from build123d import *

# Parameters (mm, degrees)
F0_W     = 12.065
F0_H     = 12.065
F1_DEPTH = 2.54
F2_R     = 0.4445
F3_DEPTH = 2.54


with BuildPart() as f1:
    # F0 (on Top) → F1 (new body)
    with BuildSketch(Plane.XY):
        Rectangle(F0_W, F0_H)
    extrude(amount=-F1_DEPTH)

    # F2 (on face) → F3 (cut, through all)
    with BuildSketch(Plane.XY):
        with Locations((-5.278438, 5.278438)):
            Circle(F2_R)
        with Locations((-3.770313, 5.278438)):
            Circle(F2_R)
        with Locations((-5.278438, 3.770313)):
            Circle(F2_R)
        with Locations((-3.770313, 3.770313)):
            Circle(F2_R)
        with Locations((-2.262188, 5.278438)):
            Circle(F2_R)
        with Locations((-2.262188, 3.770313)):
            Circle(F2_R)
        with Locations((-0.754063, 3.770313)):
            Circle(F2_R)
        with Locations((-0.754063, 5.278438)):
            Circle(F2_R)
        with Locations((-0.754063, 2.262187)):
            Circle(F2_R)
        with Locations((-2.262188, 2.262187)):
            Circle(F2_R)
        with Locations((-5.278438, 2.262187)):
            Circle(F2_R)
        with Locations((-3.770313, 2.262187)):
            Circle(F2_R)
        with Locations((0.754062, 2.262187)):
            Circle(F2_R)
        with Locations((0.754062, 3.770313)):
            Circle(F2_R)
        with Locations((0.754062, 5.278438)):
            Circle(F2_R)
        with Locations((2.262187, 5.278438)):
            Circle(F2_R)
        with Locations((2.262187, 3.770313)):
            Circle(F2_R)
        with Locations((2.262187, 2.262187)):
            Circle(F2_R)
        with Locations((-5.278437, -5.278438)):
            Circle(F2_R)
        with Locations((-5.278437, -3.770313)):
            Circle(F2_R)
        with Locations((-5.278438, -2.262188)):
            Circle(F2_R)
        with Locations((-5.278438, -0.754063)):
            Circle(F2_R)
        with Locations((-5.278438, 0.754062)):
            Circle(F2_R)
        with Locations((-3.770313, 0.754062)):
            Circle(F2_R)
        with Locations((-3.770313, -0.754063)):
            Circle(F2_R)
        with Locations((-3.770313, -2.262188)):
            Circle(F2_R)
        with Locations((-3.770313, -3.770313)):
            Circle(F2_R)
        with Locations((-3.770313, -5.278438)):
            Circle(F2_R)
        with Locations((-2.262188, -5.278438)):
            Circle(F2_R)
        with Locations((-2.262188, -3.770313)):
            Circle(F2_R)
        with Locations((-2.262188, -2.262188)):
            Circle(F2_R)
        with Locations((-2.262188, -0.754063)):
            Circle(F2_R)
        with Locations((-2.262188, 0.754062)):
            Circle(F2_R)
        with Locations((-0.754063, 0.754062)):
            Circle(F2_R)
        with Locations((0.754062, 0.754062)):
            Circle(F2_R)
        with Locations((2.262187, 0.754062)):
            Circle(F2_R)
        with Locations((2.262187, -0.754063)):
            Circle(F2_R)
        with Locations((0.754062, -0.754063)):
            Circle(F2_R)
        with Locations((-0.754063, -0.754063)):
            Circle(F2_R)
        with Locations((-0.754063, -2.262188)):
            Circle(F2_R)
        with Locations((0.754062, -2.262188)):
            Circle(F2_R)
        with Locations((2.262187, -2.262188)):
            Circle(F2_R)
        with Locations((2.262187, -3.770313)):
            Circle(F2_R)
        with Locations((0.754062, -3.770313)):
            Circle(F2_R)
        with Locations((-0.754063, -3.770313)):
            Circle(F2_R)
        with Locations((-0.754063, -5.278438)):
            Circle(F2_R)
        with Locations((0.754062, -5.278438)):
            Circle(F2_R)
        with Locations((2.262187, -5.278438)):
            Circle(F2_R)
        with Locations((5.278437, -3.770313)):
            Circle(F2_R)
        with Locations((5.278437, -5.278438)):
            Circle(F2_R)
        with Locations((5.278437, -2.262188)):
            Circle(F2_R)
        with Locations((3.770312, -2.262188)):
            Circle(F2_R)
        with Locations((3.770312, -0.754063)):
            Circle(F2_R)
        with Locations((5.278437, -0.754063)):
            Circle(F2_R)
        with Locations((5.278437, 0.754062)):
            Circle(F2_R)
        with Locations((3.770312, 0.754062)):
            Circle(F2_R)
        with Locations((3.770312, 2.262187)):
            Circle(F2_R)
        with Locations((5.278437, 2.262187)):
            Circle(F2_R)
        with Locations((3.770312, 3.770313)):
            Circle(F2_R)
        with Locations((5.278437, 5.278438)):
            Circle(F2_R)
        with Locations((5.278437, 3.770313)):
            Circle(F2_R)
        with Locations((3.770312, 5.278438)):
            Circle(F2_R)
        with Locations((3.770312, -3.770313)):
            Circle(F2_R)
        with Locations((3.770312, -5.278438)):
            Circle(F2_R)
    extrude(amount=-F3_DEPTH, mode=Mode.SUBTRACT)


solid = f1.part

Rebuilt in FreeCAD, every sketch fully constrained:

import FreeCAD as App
import Part
import Sketcher
from FreeCAD import Vector
Q = App.Units.Quantity

doc = App.newDocument("Part")
params = doc.addObject("Spreadsheet::Sheet", "Params")
for row, (alias, value) in enumerate([
    ("sketch1_width", "0.475 in"),
    ("pad1_length", "0.1 in"),
    ("sketch2_diameter", "0.035 in"),
], start=1):
    params.set(f"A{row}", alias)
    params.set(f"B{row}", "=" + value)
    params.setAlias(f"B{row}", alias)

body = doc.addObject("PartDesign::Body", "Body")

# Sketch on XY plane
sketch1 = body.newObject("Sketcher::SketchObject", "Sketch")
sketch1.AttachmentSupport = (doc.getObject("XY_Plane"), [""])
sketch1.MapMode = "FlatFace"
sketch1.addGeometry(Part.LineSegment(Vector(-6, 6, 0), Vector(-6, -6, 0)), False)
sketch1.addGeometry(Part.LineSegment(Vector(-6, -6, 0), Vector(6, -6, 0)), False)
sketch1.addGeometry(Part.LineSegment(Vector(6, -6, 0), Vector(6, 6, 0)), False)
sketch1.addGeometry(Part.LineSegment(Vector(6, 6, 0), Vector(-6, 6, 0)), False)
sketch1.addConstraint(Sketcher.Constraint("Coincident", 0, 2, 1, 1))
sketch1.addConstraint(Sketcher.Constraint("Coincident", 1, 2, 2, 1))
sketch1.addConstraint(Sketcher.Constraint("Coincident", 2, 2, 3, 1))
sketch1.addConstraint(Sketcher.Constraint("Coincident", 3, 2, 0, 1))
sketch1.addConstraint(Sketcher.Constraint("Vertical", 0))
sketch1.addConstraint(Sketcher.Constraint("Horizontal", 1))
sketch1.addConstraint(Sketcher.Constraint("Vertical", 2))
sketch1.addConstraint(Sketcher.Constraint("Horizontal", 3))
sketch1.addConstraint(Sketcher.Constraint("Symmetric", 0, 2, 2, 2, -1, 1))
sketch1.addConstraint(Sketcher.Constraint("Equal", 3, 0))
sketch1.addConstraint(Sketcher.Constraint("DistanceX", 1, 1, 1, 2, Q("0.475 in")))
sketch1.setExpression("Constraints[10]", "Params.sketch1_width")
pad1 = body.newObject("PartDesign::Pad", "Pad")
pad1.Profile = sketch1
pad1.setExpression("Length", "Params.pad1_length")
pad1.Reversed = True

# Sketch on XY plane
sketch2 = body.newObject("Sketcher::SketchObject", "Sketch001")
sketch2.AttachmentSupport = (doc.getObject("XY_Plane"), [""])
sketch2.MapMode = "FlatFace"
sketch2.addGeometry(Part.Circle(Vector(-5.28, 5.28, 0), Vector(0, 0, 1), 0.44), False)
sketch2.addGeometry(Part.Circle(Vector(-3.77, 5.28, 0), Vector(0, 0, 1), 0.44), False)
sketch2.addGeometry(Part.Circle(Vector(-5.28, 3.77, 0), Vector(0, 0, 1), 0.44), False)
sketch2.addGeometry(Part.Circle(Vector(-3.77, 3.77, 0), Vector(0, 0, 1), 0.44), False)
sketch2.addGeometry(Part.Circle(Vector(-2.26, 5.28, 0), Vector(0, 0, 1), 0.44), False)
sketch2.addGeometry(Part.Circle(Vector(-2.26, 3.77, 0), Vector(0, 0, 1), 0.44), False)
sketch2.addGeometry(Part.Circle(Vector(-0.75, 3.77, 0), Vector(0, 0, 1), 0.44), False)
sketch2.addGeometry(Part.Circle(Vector(-0.75, 5.28, 0), Vector(0, 0, 1), 0.44), False)
sketch2.addGeometry(Part.Circle(Vector(-0.75, 2.26, 0), Vector(0, 0, 1), 0.44), False)
sketch2.addGeometry(Part.Circle(Vector(-2.26, 2.26, 0), Vector(0, 0, 1), 0.44), False)
sketch2.addGeometry(Part.Circle(Vector(-5.28, 2.26, 0), Vector(0, 0, 1), 0.44), False)
sketch2.addGeometry(Part.Circle(Vector(-3.77, 2.26, 0), Vector(0, 0, 1), 0.44), False)
sketch2.addGeometry(Part.Circle(Vector(0.75, 2.26, 0), Vector(0, 0, 1), 0.44), False)
sketch2.addGeometry(Part.Circle(Vector(0.75, 3.77, 0), Vector(0, 0, 1), 0.44), False)
sketch2.addGeometry(Part.Circle(Vector(0.75, 5.28, 0), Vector(0, 0, 1), 0.44), False)
sketch2.addGeometry(Part.Circle(Vector(2.26, 5.28, 0), Vector(0, 0, 1), 0.44), False)
sketch2.addGeometry(Part.Circle(Vector(2.26, 3.77, 0), Vector(0, 0, 1), 0.44), False)
sketch2.addGeometry(Part.Circle(Vector(2.26, 2.26, 0), Vector(0, 0, 1), 0.44), False)
sketch2.addGeometry(Part.Circle(Vector(-5.28, -5.28, 0), Vector(0, 0, 1), 0.44), False)
sketch2.addGeometry(Part.Circle(Vector(-5.28, -3.77, 0), Vector(0, 0, 1), 0.44), False)
sketch2.addGeometry(Part.Circle(Vector(-5.28, -2.26, 0), Vector(0, 0, 1), 0.44), False)
sketch2.addGeometry(Part.Circle(Vector(-5.28, -0.75, 0), Vector(0, 0, 1), 0.44), False)
sketch2.addGeometry(Part.Circle(Vector(-5.28, 0.75, 0), Vector(0, 0, 1), 0.44), False)
sketch2.addGeometry(Part.Circle(Vector(-3.77, 0.75, 0), Vector(0, 0, 1), 0.44), False)
sketch2.addGeometry(Part.Circle(Vector(-3.77, -0.75, 0), Vector(0, 0, 1), 0.44), False)
sketch2.addGeometry(Part.Circle(Vector(-3.77, -2.26, 0), Vector(0, 0, 1), 0.44), False)
sketch2.addGeometry(Part.Circle(Vector(-3.77, -3.77, 0), Vector(0, 0, 1), 0.44), False)
sketch2.addGeometry(Part.Circle(Vector(-3.77, -5.28, 0), Vector(0, 0, 1), 0.44), False)
sketch2.addGeometry(Part.Circle(Vector(-2.26, -5.28, 0), Vector(0, 0, 1), 0.44), False)
sketch2.addGeometry(Part.Circle(Vector(-2.26, -3.77, 0), Vector(0, 0, 1), 0.44), False)
sketch2.addGeometry(Part.Circle(Vector(-2.26, -2.26, 0), Vector(0, 0, 1), 0.44), False)
sketch2.addGeometry(Part.Circle(Vector(-2.26, -0.75, 0), Vector(0, 0, 1), 0.44), False)
sketch2.addGeometry(Part.Circle(Vector(-2.26, 0.75, 0), Vector(0, 0, 1), 0.44), False)
sketch2.addGeometry(Part.Circle(Vector(-0.75, 0.75, 0), Vector(0, 0, 1), 0.44), False)
sketch2.addGeometry(Part.Circle(Vector(0.75, 0.75, 0), Vector(0, 0, 1), 0.44), False)
sketch2.addGeometry(Part.Circle(Vector(2.26, 0.75, 0), Vector(0, 0, 1), 0.44), False)
sketch2.addGeometry(Part.Circle(Vector(2.26, -0.75, 0), Vector(0, 0, 1), 0.44), False)
sketch2.addGeometry(Part.Circle(Vector(0.75, -0.75, 0), Vector(0, 0, 1), 0.44), False)
sketch2.addGeometry(Part.Circle(Vector(-0.75, -0.75, 0), Vector(0, 0, 1), 0.44), False)
sketch2.addGeometry(Part.Circle(Vector(-0.75, -2.26, 0), Vector(0, 0, 1), 0.44), False)
sketch2.addGeometry(Part.Circle(Vector(0.75, -2.26, 0), Vector(0, 0, 1), 0.44), False)
sketch2.addGeometry(Part.Circle(Vector(2.26, -2.26, 0), Vector(0, 0, 1), 0.44), False)
sketch2.addGeometry(Part.Circle(Vector(2.26, -3.77, 0), Vector(0, 0, 1), 0.44), False)
sketch2.addGeometry(Part.Circle(Vector(0.75, -3.77, 0), Vector(0, 0, 1), 0.44), False)
sketch2.addGeometry(Part.Circle(Vector(-0.75, -3.77, 0), Vector(0, 0, 1), 0.44), False)
sketch2.addGeometry(Part.Circle(Vector(-0.75, -5.28, 0), Vector(0, 0, 1), 0.44), False)
sketch2.addGeometry(Part.Circle(Vector(0.75, -5.28, 0), Vector(0, 0, 1), 0.44), False)
sketch2.addGeometry(Part.Circle(Vector(2.26, -5.28, 0), Vector(0, 0, 1), 0.44), False)
sketch2.addGeometry(Part.Circle(Vector(5.28, -3.77, 0), Vector(0, 0, 1), 0.44), False)
sketch2.addGeometry(Part.Circle(Vector(5.28, -5.28, 0), Vector(0, 0, 1), 0.44), False)
sketch2.addGeometry(Part.Circle(Vector(5.28, -2.26, 0), Vector(0, 0, 1), 0.44), False)
sketch2.addGeometry(Part.Circle(Vector(3.77, -2.26, 0), Vector(0, 0, 1), 0.44), False)
sketch2.addGeometry(Part.Circle(Vector(3.77, -0.75, 0), Vector(0, 0, 1), 0.44), False)
sketch2.addGeometry(Part.Circle(Vector(5.28, -0.75, 0), Vector(0, 0, 1), 0.44), False)
sketch2.addGeometry(Part.Circle(Vector(5.28, 0.75, 0), Vector(0, 0, 1), 0.44), False)
sketch2.addGeometry(Part.Circle(Vector(3.77, 0.75, 0), Vector(0, 0, 1), 0.44), False)
sketch2.addGeometry(Part.Circle(Vector(3.77, 2.26, 0), Vector(0, 0, 1), 0.44), False)
sketch2.addGeometry(Part.Circle(Vector(5.28, 2.26, 0), Vector(0, 0, 1), 0.44), False)
sketch2.addGeometry(Part.Circle(Vector(3.77, 3.77, 0), Vector(0, 0, 1), 0.44), False)
sketch2.addGeometry(Part.Circle(Vector(5.28, 5.28, 0), Vector(0, 0, 1), 0.44), False)
sketch2.addGeometry(Part.Circle(Vector(5.28, 3.77, 0), Vector(0, 0, 1), 0.44), False)
sketch2.addGeometry(Part.Circle(Vector(3.77, 5.28, 0), Vector(0, 0, 1), 0.44), False)
sketch2.addGeometry(Part.Circle(Vector(3.77, -3.77, 0), Vector(0, 0, 1), 0.44), False)
sketch2.addGeometry(Part.Circle(Vector(3.77, -5.28, 0), Vector(0, 0, 1), 0.44), False)
sketch2.addConstraint(Sketcher.Constraint("Equal", 0, 1))
sketch2.addConstraint(Sketcher.Constraint("Equal", 1, 2))
sketch2.addConstraint(Sketcher.Constraint("Equal", 2, 3))
sketch2.addConstraint(Sketcher.Constraint("Equal", 3, 4))
sketch2.addConstraint(Sketcher.Constraint("Equal", 4, 5))
sketch2.addConstraint(Sketcher.Constraint("Equal", 5, 6))
sketch2.addConstraint(Sketcher.Constraint("Equal", 6, 7))
sketch2.addConstraint(Sketcher.Constraint("Equal", 7, 8))
sketch2.addConstraint(Sketcher.Constraint("Equal", 8, 9))
sketch2.addConstraint(Sketcher.Constraint("Equal", 9, 10))
sketch2.addConstraint(Sketcher.Constraint("Equal", 10, 11))
sketch2.addConstraint(Sketcher.Constraint("Equal", 11, 12))
sketch2.addConstraint(Sketcher.Constraint("Equal", 12, 13))
sketch2.addConstraint(Sketcher.Constraint("Equal", 13, 14))
sketch2.addConstraint(Sketcher.Constraint("Equal", 14, 15))
sketch2.addConstraint(Sketcher.Constraint("Equal", 15, 16))
sketch2.addConstraint(Sketcher.Constraint("Equal", 16, 17))
sketch2.addConstraint(Sketcher.Constraint("Equal", 17, 18))
sketch2.addConstraint(Sketcher.Constraint("Equal", 18, 19))
sketch2.addConstraint(Sketcher.Constraint("Equal", 19, 20))
sketch2.addConstraint(Sketcher.Constraint("Equal", 20, 21))
sketch2.addConstraint(Sketcher.Constraint("Equal", 21, 22))
sketch2.addConstraint(Sketcher.Constraint("Equal", 22, 23))
sketch2.addConstraint(Sketcher.Constraint("Equal", 23, 24))
sketch2.addConstraint(Sketcher.Constraint("Equal", 24, 25))
sketch2.addConstraint(Sketcher.Constraint("Equal", 25, 26))
sketch2.addConstraint(Sketcher.Constraint("Equal", 26, 27))
sketch2.addConstraint(Sketcher.Constraint("Equal", 27, 28))
sketch2.addConstraint(Sketcher.Constraint("Equal", 28, 29))
sketch2.addConstraint(Sketcher.Constraint("Equal", 29, 30))
sketch2.addConstraint(Sketcher.Constraint("Equal", 30, 31))
sketch2.addConstraint(Sketcher.Constraint("Equal", 31, 32))
sketch2.addConstraint(Sketcher.Constraint("Equal", 32, 33))
sketch2.addConstraint(Sketcher.Constraint("Equal", 33, 34))
sketch2.addConstraint(Sketcher.Constraint("Equal", 34, 35))
sketch2.addConstraint(Sketcher.Constraint("Equal", 35, 36))
sketch2.addConstraint(Sketcher.Constraint("Equal", 36, 37))
sketch2.addConstraint(Sketcher.Constraint("Equal", 37, 38))
sketch2.addConstraint(Sketcher.Constraint("Equal", 38, 39))
sketch2.addConstraint(Sketcher.Constraint("Equal", 39, 40))
sketch2.addConstraint(Sketcher.Constraint("Equal", 40, 41))
sketch2.addConstraint(Sketcher.Constraint("Equal", 41, 42))
sketch2.addConstraint(Sketcher.Constraint("Equal", 42, 43))
sketch2.addConstraint(Sketcher.Constraint("Equal", 43, 44))
sketch2.addConstraint(Sketcher.Constraint("Equal", 44, 45))
sketch2.addConstraint(Sketcher.Constraint("Equal", 45, 46))
sketch2.addConstraint(Sketcher.Constraint("Equal", 46, 47))
sketch2.addConstraint(Sketcher.Constraint("Equal", 47, 48))
sketch2.addConstraint(Sketcher.Constraint("Equal", 48, 49))
sketch2.addConstraint(Sketcher.Constraint("Equal", 49, 50))
sketch2.addConstraint(Sketcher.Constraint("Equal", 50, 51))
sketch2.addConstraint(Sketcher.Constraint("Equal", 51, 52))
sketch2.addConstraint(Sketcher.Constraint("Equal", 52, 53))
sketch2.addConstraint(Sketcher.Constraint("Equal", 53, 54))
sketch2.addConstraint(Sketcher.Constraint("Equal", 54, 55))
sketch2.addConstraint(Sketcher.Constraint("Equal", 55, 56))
sketch2.addConstraint(Sketcher.Constraint("Equal", 56, 57))
sketch2.addConstraint(Sketcher.Constraint("Equal", 57, 58))
sketch2.addConstraint(Sketcher.Constraint("Equal", 58, 59))
sketch2.addConstraint(Sketcher.Constraint("Equal", 59, 60))
sketch2.addConstraint(Sketcher.Constraint("Equal", 60, 61))
sketch2.addConstraint(Sketcher.Constraint("Equal", 61, 62))
sketch2.addConstraint(Sketcher.Constraint("Equal", 62, 63))
sketch2.addConstraint(Sketcher.Constraint("Symmetric", 15, 3, 28, 3, -1, 1))
sketch2.addConstraint(Sketcher.Constraint("Symmetric", 16, 3, 29, 3, -1, 1))
sketch2.addConstraint(Sketcher.Constraint("Symmetric", 17, 3, 30, 3, -1, 1))
sketch2.addConstraint(Sketcher.Constraint("Symmetric", 31, 3, 35, 3, -1, 1))
sketch2.addConstraint(Sketcher.Constraint("Symmetric", 32, 3, 36, 3, -1, 1))
sketch2.addConstraint(Sketcher.Constraint("Symmetric", 33, 3, 37, 3, -1, 1))
sketch2.addConstraint(Sketcher.Constraint("Symmetric", 34, 3, 38, 3, -1, 1))
sketch2.addConstraint(Sketcher.Constraint("Symmetric", 12, 3, 39, 3, -1, 1))
sketch2.addConstraint(Sketcher.Constraint("Symmetric", 8, 3, 40, 3, -1, 1))
sketch2.addConstraint(Sketcher.Constraint("Symmetric", 9, 3, 41, 3, -1, 1))
sketch2.addConstraint(Sketcher.Constraint("Symmetric", 5, 3, 42, 3, -1, 1))
sketch2.addConstraint(Sketcher.Constraint("Symmetric", 6, 3, 43, 3, -1, 1))
sketch2.addConstraint(Sketcher.Constraint("Symmetric", 13, 3, 44, 3, -1, 1))
sketch2.addConstraint(Sketcher.Constraint("Symmetric", 14, 3, 45, 3, -1, 1))
sketch2.addConstraint(Sketcher.Constraint("Symmetric", 7, 3, 46, 3, -1, 1))
sketch2.addConstraint(Sketcher.Constraint("Symmetric", 4, 3, 47, 3, -1, 1))
sketch2.addConstraint(Sketcher.Constraint("Symmetric", 2, 3, 48, 3, -1, 1))
sketch2.addConstraint(Sketcher.Constraint("Symmetric", 0, 3, 49, 3, -1, 1))
sketch2.addConstraint(Sketcher.Constraint("Symmetric", 10, 3, 50, 3, -1, 1))
sketch2.addConstraint(Sketcher.Constraint("Symmetric", 11, 3, 51, 3, -1, 1))
sketch2.addConstraint(Sketcher.Constraint("Symmetric", 23, 3, 52, 3, -1, 1))
sketch2.addConstraint(Sketcher.Constraint("Symmetric", 22, 3, 53, 3, -1, 1))
sketch2.addConstraint(Sketcher.Constraint("Symmetric", 21, 3, 54, 3, -1, 1))
sketch2.addConstraint(Sketcher.Constraint("Symmetric", 24, 3, 55, 3, -1, 1))
sketch2.addConstraint(Sketcher.Constraint("Symmetric", 25, 3, 56, 3, -1, 1))
sketch2.addConstraint(Sketcher.Constraint("Symmetric", 20, 3, 57, 3, -1, 1))
sketch2.addConstraint(Sketcher.Constraint("Symmetric", 26, 3, 58, 3, -1, 1))
sketch2.addConstraint(Sketcher.Constraint("Symmetric", 18, 3, 59, 3, -1, 1))
sketch2.addConstraint(Sketcher.Constraint("Symmetric", 19, 3, 60, 3, -1, 1))
sketch2.addConstraint(Sketcher.Constraint("Symmetric", 27, 3, 61, 3, -1, 1))
sketch2.addConstraint(Sketcher.Constraint("Symmetric", 3, 3, 62, 3, -1, 1))
sketch2.addConstraint(Sketcher.Constraint("Symmetric", 1, 3, 63, 3, -1, 1))
sketch2.addConstraint(Sketcher.Constraint("Symmetric", 8, 3, 12, 3, -2))
sketch2.addConstraint(Sketcher.Constraint("Symmetric", 6, 3, 13, 3, -2))
sketch2.addConstraint(Sketcher.Constraint("Symmetric", 7, 3, 14, 3, -2))
sketch2.addConstraint(Sketcher.Constraint("Symmetric", 4, 3, 15, 3, -2))
sketch2.addConstraint(Sketcher.Constraint("Symmetric", 5, 3, 16, 3, -2))
sketch2.addConstraint(Sketcher.Constraint("Symmetric", 9, 3, 17, 3, -2))
sketch2.addConstraint(Sketcher.Constraint("Symmetric", 33, 3, 34, 3, -2))
sketch2.addConstraint(Sketcher.Constraint("Symmetric", 32, 3, 35, 3, -2))
sketch2.addConstraint(Sketcher.Constraint("Symmetric", 19, 3, 48, 3, -2))
sketch2.addConstraint(Sketcher.Constraint("Symmetric", 18, 3, 49, 3, -2))
sketch2.addConstraint(Sketcher.Constraint("Symmetric", 20, 3, 50, 3, -2))
sketch2.addConstraint(Sketcher.Constraint("Symmetric", 25, 3, 51, 3, -2))
sketch2.addConstraint(Sketcher.Constraint("Symmetric", 24, 3, 52, 3, -2))
sketch2.addConstraint(Sketcher.Constraint("Symmetric", 21, 3, 53, 3, -2))
sketch2.addConstraint(Sketcher.Constraint("Symmetric", 3, 3, 58, 3, -2))
sketch2.addConstraint(Sketcher.Constraint("Symmetric", 1, 3, 61, 3, -2))
sketch2.addConstraint(Sketcher.Constraint("Horizontal", 0, 3, 1, 3))
sketch2.addConstraint(Sketcher.Constraint("Horizontal", 2, 3, 3, 3))
sketch2.addConstraint(Sketcher.Constraint("Horizontal", 1, 3, 4, 3))
sketch2.addConstraint(Sketcher.Constraint("Horizontal", 3, 3, 5, 3))
sketch2.addConstraint(Sketcher.Constraint("Horizontal", 5, 3, 6, 3))
sketch2.addConstraint(Sketcher.Constraint("Horizontal", 4, 3, 7, 3))
sketch2.addConstraint(Sketcher.Constraint("Horizontal", 8, 3, 9, 3))
sketch2.addConstraint(Sketcher.Constraint("Horizontal", 9, 3, 10, 3))
sketch2.addConstraint(Sketcher.Constraint("Horizontal", 10, 3, 11, 3))
sketch2.addConstraint(Sketcher.Constraint("Horizontal", 22, 3, 23, 3))
sketch2.addConstraint(Sketcher.Constraint("Horizontal", 24, 3, 31, 3))
sketch2.addConstraint(Sketcher.Constraint("Horizontal", 32, 3, 33, 3))
sketch2.addConstraint(Sketcher.Constraint("Vertical", 0, 3, 2, 3))
sketch2.addConstraint(Sketcher.Constraint("Vertical", 1, 3, 3, 3))
sketch2.addConstraint(Sketcher.Constraint("Vertical", 4, 3, 5, 3))
sketch2.addConstraint(Sketcher.Constraint("Vertical", 6, 3, 7, 3))
sketch2.addConstraint(Sketcher.Constraint("Vertical", 7, 3, 8, 3))
sketch2.addConstraint(Sketcher.Constraint("Vertical", 5, 3, 9, 3))
sketch2.addConstraint(Sketcher.Constraint("Vertical", 2, 3, 10, 3))
sketch2.addConstraint(Sketcher.Constraint("Vertical", 3, 3, 11, 3))
sketch2.addConstraint(Sketcher.Constraint("Vertical", 20, 3, 21, 3))
sketch2.addConstraint(Sketcher.Constraint("Vertical", 11, 3, 23, 3))
sketch2.addConstraint(Sketcher.Constraint("Vertical", 30, 3, 31, 3))
sketch2.addConstraint(Sketcher.Constraint("Vertical", 8, 3, 33, 3))
sketch2.addConstraint(Sketcher.Constraint("Diameter", 0, Q("0.035 in")))
sketch2.addConstraint(Sketcher.Constraint("DistanceX", 0, 3, -1, 1, 5.278438))
sketch2.addConstraint(Sketcher.Constraint("DistanceY", -1, 1, 0, 3, 5.278438))
sketch2.addConstraint(Sketcher.Constraint("DistanceX", 4, 3, -1, 1, 2.262188))
sketch2.addConstraint(Sketcher.Constraint("DistanceY", 20, 3, -1, 1, 2.262188))
sketch2.addConstraint(Sketcher.Constraint("DistanceX", 1, 3, -1, 1, 3.770313))
sketch2.addConstraint(Sketcher.Constraint("DistanceY", -1, 1, 2, 3, 3.770313))
sketch2.addConstraint(Sketcher.Constraint("DistanceX", 6, 3, -1, 1, 0.754063))
sketch2.addConstraint(Sketcher.Constraint("DistanceY", 21, 3, -1, 1, 0.754063))
sketch2.setExpression("Constraints[135]", "Params.sketch2_diameter")
pocket1 = body.newObject("PartDesign::Pocket", "Pocket")
pocket1.Profile = sketch2
pocket1.Type = "ThroughAll"

doc.recompute()
